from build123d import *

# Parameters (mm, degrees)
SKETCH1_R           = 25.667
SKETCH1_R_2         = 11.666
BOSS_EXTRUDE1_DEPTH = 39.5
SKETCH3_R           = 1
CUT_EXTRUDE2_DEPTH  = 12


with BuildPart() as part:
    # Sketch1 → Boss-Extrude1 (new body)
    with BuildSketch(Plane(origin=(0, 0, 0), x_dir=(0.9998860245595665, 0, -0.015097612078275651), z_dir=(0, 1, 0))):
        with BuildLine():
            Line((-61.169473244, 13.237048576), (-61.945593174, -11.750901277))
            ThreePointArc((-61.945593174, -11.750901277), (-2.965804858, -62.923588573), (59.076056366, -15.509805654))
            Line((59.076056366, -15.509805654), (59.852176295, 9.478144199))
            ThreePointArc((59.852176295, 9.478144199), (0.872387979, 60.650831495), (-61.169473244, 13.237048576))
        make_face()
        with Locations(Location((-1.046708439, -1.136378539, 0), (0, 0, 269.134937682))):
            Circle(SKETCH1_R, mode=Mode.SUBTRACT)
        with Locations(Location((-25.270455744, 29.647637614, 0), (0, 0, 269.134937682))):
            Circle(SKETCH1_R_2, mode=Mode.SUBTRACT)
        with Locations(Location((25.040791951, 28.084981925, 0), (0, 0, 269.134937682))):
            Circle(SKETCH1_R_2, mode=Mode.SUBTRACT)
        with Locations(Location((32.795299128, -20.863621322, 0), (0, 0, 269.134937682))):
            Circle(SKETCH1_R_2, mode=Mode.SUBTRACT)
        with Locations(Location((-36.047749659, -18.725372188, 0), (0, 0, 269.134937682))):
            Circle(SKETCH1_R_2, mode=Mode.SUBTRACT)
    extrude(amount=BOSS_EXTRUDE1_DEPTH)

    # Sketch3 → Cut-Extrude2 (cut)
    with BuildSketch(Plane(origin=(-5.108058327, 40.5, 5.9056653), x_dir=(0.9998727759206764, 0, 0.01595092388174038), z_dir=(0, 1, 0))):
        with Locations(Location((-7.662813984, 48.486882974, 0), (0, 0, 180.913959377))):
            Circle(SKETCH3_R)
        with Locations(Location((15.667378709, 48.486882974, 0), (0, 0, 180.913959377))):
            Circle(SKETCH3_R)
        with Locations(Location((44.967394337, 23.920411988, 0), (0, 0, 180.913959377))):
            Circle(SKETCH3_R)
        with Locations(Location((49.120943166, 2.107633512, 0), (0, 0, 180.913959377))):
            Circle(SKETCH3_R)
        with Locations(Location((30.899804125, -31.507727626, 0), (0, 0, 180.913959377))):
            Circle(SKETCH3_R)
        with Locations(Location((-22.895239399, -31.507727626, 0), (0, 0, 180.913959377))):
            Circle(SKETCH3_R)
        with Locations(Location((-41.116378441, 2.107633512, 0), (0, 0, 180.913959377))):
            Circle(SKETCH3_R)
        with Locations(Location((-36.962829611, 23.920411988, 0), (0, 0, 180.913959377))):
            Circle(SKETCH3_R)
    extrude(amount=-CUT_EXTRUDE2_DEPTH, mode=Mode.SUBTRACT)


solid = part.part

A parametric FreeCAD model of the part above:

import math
import FreeCAD as App
import Part
import Sketcher
from FreeCAD import Vector
Q = App.Units.Quantity

doc = App.newDocument("Part")
body = doc.addObject("PartDesign::Body", "Body")

sketch1 = body.newObject("Sketcher::SketchObject", "Sketch")
sketch1.AttachmentSupport = (doc.getObject("XZ_Plane"), [""])
sketch1.MapMode = "FlatFace"
sketch1.addGeometry([
    Part.LineSegment(Vector(-61, -12, 0), Vector(-62, 13, 0)),
    Part.ArcOfCircle(Part.Circle(Vector(-1, 1, 0), Vector(0, 0, 1), 62), math.radians(13), math.radians(169)),
    Part.LineSegment(Vector(59, 15, 0), Vector(60, -10, 0)),
    Part.ArcOfCircle(Part.Circle(Vector(-1, 1, 0), Vector(0, 0, 1), 62), math.radians(-167), math.radians(-11)),
    Part.Circle(Vector(-36, 19, 0), Vector(0, 0, 1), 12),
    Part.Circle(Vector(33, 20, 0), Vector(0, 0, 1), 12),
    Part.Circle(Vector(-1, 1, 0), Vector(0, 0, 1), 26),
    Part.Circle(Vector(-26, -29, 0), Vector(0, 0, 1), 12),
    Part.Circle(Vector(25, -28, 0), Vector(0, 0, 1), 12),
], False)
sketch1.addConstraint([
    Sketcher.Constraint("Coincident", 0, 2, 1, 2),
    Sketcher.Constraint("Coincident", 1, 1, 2, 1),
    Sketcher.Constraint("Coincident", 2, 2, 3, 2),
    Sketcher.Constraint("Coincident", 3, 1, 0, 1),
    Sketcher.Constraint("Coincident", 3, 3, 1, 3),
    Sketcher.Constraint("Coincident", 6, 3, 1, 3),
    Sketcher.Constraint("Equal", 1, 3),
    Sketcher.Constraint("Equal", 4, 5),
    Sketcher.Constraint("Equal", 5, 7),
    Sketcher.Constraint("Equal", 7, 8),
    Sketcher.Constraint("Parallel", 0, 2),
    Sketcher.Constraint("Equal", 0, 2),
    Sketcher.Constraint("Distance", 0, Q("25 mm")),
    Sketcher.Constraint("Diameter", 4, Q("23.332 mm")),
    Sketcher.Constraint("Diameter", 6, Q("51.334 mm")),
    Sketcher.Constraint("Radius", 1, Q("61.817006 mm")),
    Sketcher.Constraint("DistanceX", 4, 3, 1, 3, Q("34.7315 mm")),
    Sketcher.Constraint("DistanceY", 2, 2, 5, 3, Q("30.746802 mm")),
    Sketcher.Constraint("DistanceY", 3, 1, 4, 3, Q("31.5795 mm")),
    Sketcher.Constraint("DistanceY", -1, 1, 1, 3, Q("1.152052 mm")),
    Sketcher.Constraint("DistanceX", -1, 1, 8, 3, Q("24.613922 mm")),
    Sketcher.Constraint("DistanceY", -1, 1, 1, 1, Q("14.616131 mm")),
    Sketcher.Constraint("DistanceX", 3, 1, -1, 1, Q("61.362349 mm")),
    Sketcher.Constraint("DistanceX", 7, 3, 1, 3, Q("24.685752 mm")),
    Sketcher.Constraint("DistanceY", 8, 3, 1, 3, Q("29.611889 mm")),
    Sketcher.Constraint("DistanceX", 8, 3, 5, 3, Q("8.49263 mm")),
    Sketcher.Constraint("DistanceY", 7, 3, 3, 1, Q("16.950708 mm")),
])
pad1 = body.newObject("PartDesign::Pad", "Pad")
pad1.Profile = sketch1
pad1.Length = 39.5
pad1.Reversed = True

sketch2 = body.newObject("Sketcher::SketchObject", "Sketch001")
sketch2.AttachmentSupport = (doc.getObject("XZ_Plane"), [""])
sketch2.MapMode = "FlatFace"
sketch2.AttachmentOffset = App.Placement(Vector(0, 0, -40.5), App.Rotation())
sketch2.addGeometry([
    Part.Circle(Vector(-12, -42.7, 0), Vector(0, 0, 1), 1),
    Part.Circle(Vector(11.3, -42.3, 0), Vector(0, 0, 1), 1),
    Part.Circle(Vector(40.2, -17.3, 0), Vector(0, 0, 1), 1),
    Part.Circle(Vector(44, 4.6, 0), Vector(0, 0, 1), 1),
    Part.Circle(Vector(25.3, 37.9, 0), Vector(0, 0, 1), 1),
    Part.Circle(Vector(-28.5, 37, 0), Vector(0, 0, 1), 1),
    Part.Circle(Vector(-46.2, 3.1, 0), Vector(0, 0, 1), 1),
    Part.Circle(Vector(-41.7, -18.6, 0), Vector(0, 0, 1), 1),
], False)
sketch2.addConstraint([
    Sketcher.Constraint("Equal", 0, 1),
    Sketcher.Constraint("Equal", 1, 2),
    Sketcher.Constraint("Equal", 2, 3),
    Sketcher.Constraint("Equal", 3, 4),
    Sketcher.Constraint("Equal", 4, 5),
    Sketcher.Constraint("Equal", 5, 6),
    Sketcher.Constraint("Equal", 6, 7),
    Sketcher.Constraint("Diameter", 0, Q("2 mm")),
    Sketcher.Constraint("DistanceX", 1, 3, 4, 3, Q("13.9545 mm")),
    Sketcher.Constraint("DistanceX", 5, 3, 4, 3, Q("53.7882 mm")),
    Sketcher.Constraint("DistanceX", 6, 3, 0, 3, Q("34.1891 mm")),
    Sketcher.Constraint("DistanceX", 7, 3, 2, 3, Q("81.9198 mm")),
    Sketcher.Constraint("DistanceY", 1, 3, -1, 1, Q("42.32514 mm")),
    Sketcher.Constraint("DistanceY", 2, 3, -1, 1, Q("17.294432 mm")),
    Sketcher.Constraint("DistanceY", 0, 3, 1, 3, Q("0.372138 mm")),
    Sketcher.Constraint("DistanceX", 1, 3, 2, 3, Q("28.90443 mm")),
    Sketcher.Constraint("DistanceX", 0, 3, 3, 3, Q("56.036741 mm")),
    Sketcher.Constraint("DistanceY", 3, 3, 4, 3, Q("33.32044 mm")),
    Sketcher.Constraint("DistanceY", 5, 3, 4, 3, Q("0.858081 mm")),
    Sketcher.Constraint("DistanceY", 6, 3, 5, 3, Q("33.901728 mm")),
    Sketcher.Constraint("DistanceY", 7, 3, 6, 3, Q("21.74375 mm")),
    Sketcher.Constraint("DistanceX", 0, 3, -1, 1, Q("11.996487 mm")),
    Sketcher.Constraint("DistanceX", -1, 1, 1, 3, Q("11.330738 mm")),
    Sketcher.Constraint("DistanceY", -1, 1, 3, 3, Q("4.581824 mm")),
])
pocket1 = body.newObject("PartDesign::Pocket", "Pocket")
pocket1.Profile = sketch2
pocket1.Length = 12
pocket1.Reversed = True

doc.recompute()
